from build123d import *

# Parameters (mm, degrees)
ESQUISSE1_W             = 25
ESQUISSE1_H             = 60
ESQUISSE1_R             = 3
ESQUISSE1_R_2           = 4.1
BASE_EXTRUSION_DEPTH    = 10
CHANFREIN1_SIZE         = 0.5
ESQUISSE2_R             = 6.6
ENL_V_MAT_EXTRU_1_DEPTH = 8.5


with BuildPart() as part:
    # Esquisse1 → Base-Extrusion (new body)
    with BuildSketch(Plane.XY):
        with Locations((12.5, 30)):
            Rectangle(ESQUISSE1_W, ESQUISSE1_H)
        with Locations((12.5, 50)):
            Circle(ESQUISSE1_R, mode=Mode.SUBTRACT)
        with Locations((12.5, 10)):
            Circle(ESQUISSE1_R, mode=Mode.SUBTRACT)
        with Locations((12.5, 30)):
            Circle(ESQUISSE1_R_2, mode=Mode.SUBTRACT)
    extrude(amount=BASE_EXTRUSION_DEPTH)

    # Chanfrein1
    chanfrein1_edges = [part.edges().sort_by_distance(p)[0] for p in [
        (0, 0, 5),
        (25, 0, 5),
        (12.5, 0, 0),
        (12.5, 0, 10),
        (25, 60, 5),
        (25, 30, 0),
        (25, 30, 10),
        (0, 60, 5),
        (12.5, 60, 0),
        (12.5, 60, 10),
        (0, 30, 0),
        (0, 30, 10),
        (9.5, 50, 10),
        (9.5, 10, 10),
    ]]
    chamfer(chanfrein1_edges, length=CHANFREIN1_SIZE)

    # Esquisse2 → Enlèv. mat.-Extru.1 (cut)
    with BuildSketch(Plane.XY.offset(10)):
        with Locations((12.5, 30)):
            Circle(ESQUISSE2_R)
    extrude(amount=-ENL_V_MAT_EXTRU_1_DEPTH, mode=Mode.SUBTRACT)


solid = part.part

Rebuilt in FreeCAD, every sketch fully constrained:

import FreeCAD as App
import Part
import Sketcher
from FreeCAD import Vector
Q = App.Units.Quantity


def edges_at(feature, points):
    """Names of the edges that pass closest to the given points."""
    edges = feature.Shape.Edges
    near = lambda p: min(range(len(edges)), key=lambda i: edges[i].distToShape(Part.Vertex(*p))[0])
    return sorted({f"Edge{near(p) + 1}" for p in points})


def add_polygon(sketch, points):
    """Adds a closed chain of lines whose ends are joined by coincident constraints."""
    first, n = sketch.GeometryCount, len(points)
    for a, b in zip(points, points[1:] + points[:1]):
        sketch.addGeometry(Part.LineSegment(App.Vector(*a, 0), App.Vector(*b, 0)), False)
    for i in range(n):
        sketch.addConstraint(Sketcher.Constraint("Coincident", first + i, 2, first + (i + 1) % n, 1))

doc = App.newDocument("Part")
params = doc.addObject("Spreadsheet::Sheet", "Params")
for row, (alias, value) in enumerate([
    ("sketch1_diameter", "6 mm"),
    ("sketch1_diameter2", "8.2 mm"),
    ("sketch1_width", "25 mm"),
    ("sketch1_height", "60 mm"),
    ("pad1_length", "10 mm"),
    ("chamfer_size", "0.5 mm"),
    ("sketch2_diameter", "13.2 mm"),
    ("pocket1_length", "8.5 mm"),
], start=1):
    params.set(f"A{row}", alias)
    params.set(f"B{row}", "=" + value)
    params.setAlias(f"B{row}", alias)

body = doc.addObject("PartDesign::Body", "Body")

# Sketch on XY plane
sketch1 = body.newObject("Sketcher::SketchObject", "Sketch")
sketch1.AttachmentSupport = (doc.getObject("XY_Plane"), [""])
sketch1.MapMode = "FlatFace"
add_polygon(sketch1, [(0, 60), (0, 0), (25, 0), (25, 60)])  # lines 0-3
sketch1.addGeometry(Part.Circle(Vector(12.5, 10, 0), Vector(0, 0, 1), 3), False)  # 4
sketch1.addGeometry(Part.Circle(Vector(12.5, 30, 0), Vector(0, 0, 1), 4.1), False)  # 5
sketch1.addGeometry(Part.Circle(Vector(12.5, 50, 0), Vector(0, 0, 1), 3), False)  # 6
sketch1.addConstraint(Sketcher.Constraint("Vertical", 0))
sketch1.addConstraint(Sketcher.Constraint("Horizontal", 1))
sketch1.addConstraint(Sketcher.Constraint("Vertical", 2))
sketch1.addConstraint(Sketcher.Constraint("Horizontal", 3))
sketch1.addConstraint(Sketcher.Constraint("Coincident", 0, 2, -1, 1))
sketch1.addConstraint(Sketcher.Constraint("Equal", 4, 6))
sketch1.addConstraint(Sketcher.Constraint("Vertical", 4, 3, 5, 3))
sketch1.addConstraint(Sketcher.Constraint("Vertical", 5, 3, 6, 3))
sketch1.addConstraint(Sketcher.Constraint("Diameter", 4, Q("6 mm")))
sketch1.addConstraint(Sketcher.Constraint("Diameter", 5, Q("8.2 mm")))
sketch1.addConstraint(Sketcher.Constraint("DistanceX", 1, 1, 1, 2, Q("25 mm")))
sketch1.addConstraint(Sketcher.Constraint("DistanceY", 0, 2, 0, 1, Q("60 mm")))
sketch1.addConstraint(Sketcher.Constraint("DistanceY", -1, 1, 4, 3, Q("10 mm")))
sketch1.addConstraint(Sketcher.Constraint("DistanceY", -1, 1, 5, 3, Q("30 mm")))
sketch1.addConstraint(Sketcher.Constraint("DistanceY", -1, 1, 6, 3, Q("50 mm")))
sketch1.addConstraint(Sketcher.Constraint("DistanceX", -1, 1, 4, 3, Q("12.5 mm")))
sketch1.setExpression("Constraints[12]", "Params.sketch1_diameter")
sketch1.setExpression("Constraints[13]", "Params.sketch1_diameter2")
sketch1.setExpression("Constraints[14]", "Params.sketch1_width")
sketch1.setExpression("Constraints[15]", "Params.sketch1_height")
pad1 = body.newObject("PartDesign::Pad", "Pad")
pad1.Profile = sketch1
pad1.setExpression("Length", "Params.pad1_length")
doc.recompute()

chamfer = body.newObject("PartDesign::Chamfer", "Chamfer")
chamfer.Base = (pad1, edges_at(pad1, [
    (0, 0, 5),
    (25, 0, 5),
    (12.5, 0, 0),
    (12.5, 0, 10),
    (25, 60, 5),
    (25, 30, 0),
    (25, 30, 10),
    (0, 60, 5),
    (12.5, 60, 0),
    (12.5, 60, 10),
    (0, 30, 0),
    (0, 30, 10),
    (9.5, 50, 10),
    (9.5, 10, 10),
]))
chamfer.setExpression("Size", "Params.chamfer_size")

# Sketch on XY plane
sketch2 = body.newObject("Sketcher::SketchObject", "Sketch001")
sketch2.AttachmentSupport = (doc.getObject("XY_Plane"), [""])
sketch2.MapMode = "FlatFace"
sketch2.AttachmentOffset = App.Placement(Vector(0, 0, 10), App.Rotation())
sketch2.addGeometry(Part.Circle(Vector(12.5, 30, 0), Vector(0, 0, 1), 6.6), False)
sketch2.addConstraint(Sketcher.Constraint("Diameter", 0, Q("13.2 mm")))
sketch2.addConstraint(Sketcher.Constraint("DistanceY", -1, 1, 0, 3, Q("30 mm")))
sketch2.addConstraint(Sketcher.Constraint("DistanceX", -1, 1, 0, 3, Q("12.5 mm")))
sketch2.setExpression("Constraints[0]", "Params.sketch2_diameter")
pocket1 = body.newObject("PartDesign::Pocket", "Pocket")
pocket1.Profile = sketch2
pocket1.setExpression("Length", "Params.pocket1_length")

doc.recompute()
